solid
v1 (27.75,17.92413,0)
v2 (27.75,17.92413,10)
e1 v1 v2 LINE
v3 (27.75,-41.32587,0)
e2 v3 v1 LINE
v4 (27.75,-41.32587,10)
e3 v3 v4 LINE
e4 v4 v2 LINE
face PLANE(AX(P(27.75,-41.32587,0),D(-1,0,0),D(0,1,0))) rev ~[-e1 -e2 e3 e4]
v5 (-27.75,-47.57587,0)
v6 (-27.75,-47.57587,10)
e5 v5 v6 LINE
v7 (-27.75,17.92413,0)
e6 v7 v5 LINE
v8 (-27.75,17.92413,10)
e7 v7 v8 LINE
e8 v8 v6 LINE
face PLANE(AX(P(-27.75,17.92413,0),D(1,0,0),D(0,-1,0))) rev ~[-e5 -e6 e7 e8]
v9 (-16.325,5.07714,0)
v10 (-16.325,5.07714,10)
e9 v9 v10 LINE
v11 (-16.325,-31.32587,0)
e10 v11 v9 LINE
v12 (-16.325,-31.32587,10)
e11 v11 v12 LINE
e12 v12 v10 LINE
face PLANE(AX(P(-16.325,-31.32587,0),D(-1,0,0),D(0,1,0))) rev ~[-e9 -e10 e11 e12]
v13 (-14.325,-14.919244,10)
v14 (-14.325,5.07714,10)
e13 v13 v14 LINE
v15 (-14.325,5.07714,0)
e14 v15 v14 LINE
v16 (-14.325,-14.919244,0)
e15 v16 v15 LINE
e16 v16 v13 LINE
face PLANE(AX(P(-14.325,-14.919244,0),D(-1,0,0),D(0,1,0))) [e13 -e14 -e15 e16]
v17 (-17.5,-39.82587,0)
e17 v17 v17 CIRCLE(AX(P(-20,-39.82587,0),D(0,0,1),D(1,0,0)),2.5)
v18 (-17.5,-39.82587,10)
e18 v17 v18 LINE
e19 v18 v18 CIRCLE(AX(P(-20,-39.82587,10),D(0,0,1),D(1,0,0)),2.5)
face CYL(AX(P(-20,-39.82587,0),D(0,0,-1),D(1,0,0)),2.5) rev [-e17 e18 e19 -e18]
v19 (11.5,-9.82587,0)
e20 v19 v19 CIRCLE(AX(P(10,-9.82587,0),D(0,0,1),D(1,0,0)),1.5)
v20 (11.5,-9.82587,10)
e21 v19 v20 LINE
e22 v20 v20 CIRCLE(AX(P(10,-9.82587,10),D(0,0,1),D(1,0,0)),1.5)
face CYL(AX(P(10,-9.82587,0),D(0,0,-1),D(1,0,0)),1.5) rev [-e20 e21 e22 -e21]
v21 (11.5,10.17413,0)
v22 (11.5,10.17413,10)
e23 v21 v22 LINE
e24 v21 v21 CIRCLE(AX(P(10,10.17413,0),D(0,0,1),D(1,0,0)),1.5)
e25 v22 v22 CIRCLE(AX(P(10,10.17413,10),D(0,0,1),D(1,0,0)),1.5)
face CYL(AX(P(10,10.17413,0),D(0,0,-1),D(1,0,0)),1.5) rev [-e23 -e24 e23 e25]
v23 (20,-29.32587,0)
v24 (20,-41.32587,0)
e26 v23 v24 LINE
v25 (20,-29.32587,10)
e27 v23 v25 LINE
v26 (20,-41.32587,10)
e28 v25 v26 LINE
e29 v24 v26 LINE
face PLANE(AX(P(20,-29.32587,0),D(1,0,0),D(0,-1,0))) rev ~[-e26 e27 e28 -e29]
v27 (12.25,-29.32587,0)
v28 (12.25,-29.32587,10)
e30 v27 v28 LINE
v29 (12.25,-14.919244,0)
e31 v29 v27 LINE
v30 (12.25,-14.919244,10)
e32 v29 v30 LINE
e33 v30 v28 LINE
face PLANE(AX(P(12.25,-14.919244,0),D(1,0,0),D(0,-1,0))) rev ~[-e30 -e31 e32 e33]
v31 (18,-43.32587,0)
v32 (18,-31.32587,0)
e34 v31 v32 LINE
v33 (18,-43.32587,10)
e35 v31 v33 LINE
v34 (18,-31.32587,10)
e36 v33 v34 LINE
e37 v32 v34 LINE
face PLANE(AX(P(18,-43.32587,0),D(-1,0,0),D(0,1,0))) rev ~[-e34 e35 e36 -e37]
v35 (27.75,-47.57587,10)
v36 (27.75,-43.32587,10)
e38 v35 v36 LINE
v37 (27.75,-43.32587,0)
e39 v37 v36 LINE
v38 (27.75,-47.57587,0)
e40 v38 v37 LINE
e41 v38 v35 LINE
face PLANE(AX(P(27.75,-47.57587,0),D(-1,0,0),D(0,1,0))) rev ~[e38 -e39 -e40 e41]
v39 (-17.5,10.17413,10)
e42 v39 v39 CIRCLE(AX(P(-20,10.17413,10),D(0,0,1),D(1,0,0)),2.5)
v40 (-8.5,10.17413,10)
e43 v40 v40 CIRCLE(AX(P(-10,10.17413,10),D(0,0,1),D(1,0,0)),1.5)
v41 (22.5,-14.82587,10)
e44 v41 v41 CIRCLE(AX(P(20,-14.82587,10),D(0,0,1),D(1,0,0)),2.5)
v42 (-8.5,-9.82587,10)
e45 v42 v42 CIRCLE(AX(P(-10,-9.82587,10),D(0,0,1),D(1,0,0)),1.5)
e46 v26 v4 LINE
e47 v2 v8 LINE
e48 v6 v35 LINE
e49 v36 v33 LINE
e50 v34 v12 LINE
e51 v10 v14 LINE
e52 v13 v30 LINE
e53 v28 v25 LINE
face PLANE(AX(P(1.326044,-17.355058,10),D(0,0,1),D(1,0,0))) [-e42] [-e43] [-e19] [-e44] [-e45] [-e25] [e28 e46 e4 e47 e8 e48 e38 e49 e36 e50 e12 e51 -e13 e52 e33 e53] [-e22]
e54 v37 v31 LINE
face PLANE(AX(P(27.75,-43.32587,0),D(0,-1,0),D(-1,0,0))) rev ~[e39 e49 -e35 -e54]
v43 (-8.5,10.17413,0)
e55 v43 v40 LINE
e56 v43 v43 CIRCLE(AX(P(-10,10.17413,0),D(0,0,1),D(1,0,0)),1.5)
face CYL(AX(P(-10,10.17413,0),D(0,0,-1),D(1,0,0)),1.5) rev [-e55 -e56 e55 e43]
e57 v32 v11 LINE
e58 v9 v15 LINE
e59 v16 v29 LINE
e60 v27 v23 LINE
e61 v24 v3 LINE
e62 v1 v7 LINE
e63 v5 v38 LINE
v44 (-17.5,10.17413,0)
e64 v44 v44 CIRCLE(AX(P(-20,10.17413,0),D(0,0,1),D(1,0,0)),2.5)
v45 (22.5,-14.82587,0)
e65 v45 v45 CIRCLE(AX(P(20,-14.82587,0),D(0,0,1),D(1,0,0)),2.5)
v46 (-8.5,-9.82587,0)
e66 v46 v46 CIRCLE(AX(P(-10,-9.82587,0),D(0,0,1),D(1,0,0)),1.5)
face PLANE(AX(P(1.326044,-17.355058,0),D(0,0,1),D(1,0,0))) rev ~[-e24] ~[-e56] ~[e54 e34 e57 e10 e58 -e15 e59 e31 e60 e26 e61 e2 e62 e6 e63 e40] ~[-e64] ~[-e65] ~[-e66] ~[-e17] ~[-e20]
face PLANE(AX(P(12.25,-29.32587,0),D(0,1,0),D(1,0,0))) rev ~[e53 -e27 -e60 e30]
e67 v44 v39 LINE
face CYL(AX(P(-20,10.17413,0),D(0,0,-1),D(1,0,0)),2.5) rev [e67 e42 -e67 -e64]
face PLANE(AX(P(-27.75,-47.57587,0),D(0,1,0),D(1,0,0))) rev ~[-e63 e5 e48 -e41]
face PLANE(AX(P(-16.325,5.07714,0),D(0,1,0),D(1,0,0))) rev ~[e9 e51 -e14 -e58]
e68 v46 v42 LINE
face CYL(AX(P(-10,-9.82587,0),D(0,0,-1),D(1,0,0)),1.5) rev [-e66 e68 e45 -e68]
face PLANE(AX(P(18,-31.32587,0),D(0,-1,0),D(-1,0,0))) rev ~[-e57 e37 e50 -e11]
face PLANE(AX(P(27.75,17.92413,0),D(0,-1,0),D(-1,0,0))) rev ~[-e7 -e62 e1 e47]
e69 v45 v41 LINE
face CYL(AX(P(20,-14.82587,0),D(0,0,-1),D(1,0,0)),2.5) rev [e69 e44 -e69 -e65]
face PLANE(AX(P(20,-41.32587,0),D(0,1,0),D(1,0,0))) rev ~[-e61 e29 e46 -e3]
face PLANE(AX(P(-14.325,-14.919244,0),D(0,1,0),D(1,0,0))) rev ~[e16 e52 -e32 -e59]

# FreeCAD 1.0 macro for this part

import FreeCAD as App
import Part
import Sketcher
from FreeCAD import Vector
Q = App.Units.Quantity


def add_polygon(sketch, points):
    """Adds a closed chain of lines whose ends are joined by coincident constraints."""
    first, n = sketch.GeometryCount, len(points)
    for a, b in zip(points, points[1:] + points[:1]):
        sketch.addGeometry(Part.LineSegment(App.Vector(*a, 0), App.Vector(*b, 0)), False)
    for i in range(n):
        sketch.addConstraint(Sketcher.Constraint("Coincident", first + i, 2, first + (i + 1) % n, 1))

doc = App.newDocument("Part")
body = doc.addObject("PartDesign::Body", "Body")

# Sketch on XY plane
sketch1 = body.newObject("Sketcher::SketchObject", "Sketch")
sketch1.AttachmentSupport = (doc.getObject("XY_Plane"), [""])
sketch1.MapMode = "FlatFace"
add_polygon(sketch1, [(27.8, -41.3), (27.8, 17.9), (-27.8, 17.9), (-27.8, -47.6), (27.8, -47.6), (27.8, -43.3), (18, -43.3), (18, -31.3), (-16.3, -31.3), (-16.3, 5.1), (-14.3, 5.1), (-14.3, -14.9), (12.2, -14.9), (12.2, -29.3), (20, -29.3), (20, -41.3)])  # lines 0-15
sketch1.addGeometry(Part.Circle(Vector(-20, -39.8, 0), Vector(0, 0, 1), 2.5), False)  # 16
sketch1.addGeometry(Part.Circle(Vector(-10, -9.8, 0), Vector(0, 0, 1), 1.5), False)  # 17
sketch1.addGeometry(Part.Circle(Vector(-20, 10.2, 0), Vector(0, 0, 1), 2.5), False)  # 18
sketch1.addGeometry(Part.Circle(Vector(-10, 10.2, 0), Vector(0, 0, 1), 1.5), False)  # 19
sketch1.addGeometry(Part.Circle(Vector(10, -9.8, 0), Vector(0, 0, 1), 1.5), False)  # 20
sketch1.addGeometry(Part.Circle(Vector(20, -14.8, 0), Vector(0, 0, 1), 2.5), False)  # 21
sketch1.addGeometry(Part.Circle(Vector(10, 10.2, 0), Vector(0, 0, 1), 1.5), False)  # 22
sketch1.addConstraint([
    Sketcher.Constraint("Vertical", 0),
    Sketcher.Constraint("Horizontal", 1),
    Sketcher.Constraint("Vertical", 2),
    Sketcher.Constraint("Horizontal", 3),
    Sketcher.Constraint("Vertical", 4),
    Sketcher.Constraint("Horizontal", 5),
    Sketcher.Constraint("Vertical", 6),
    Sketcher.Constraint("Horizontal", 7),
    Sketcher.Constraint("Vertical", 8),
    Sketcher.Constraint("Horizontal", 9),
    Sketcher.Constraint("Vertical", 10),
    Sketcher.Constraint("Horizontal", 11),
    Sketcher.Constraint("Vertical", 12),
    Sketcher.Constraint("Horizontal", 13),
    Sketcher.Constraint("Vertical", 14),
    Sketcher.Constraint("Horizontal", 15),
    Sketcher.Constraint("Equal", 16, 18),
    Sketcher.Constraint("Equal", 17, 19),
    Sketcher.Constraint("Equal", 19, 20),
    Sketcher.Constraint("Equal", 18, 21),
    Sketcher.Constraint("Equal", 20, 22),
    Sketcher.Constraint("Symmetric", 17, 3, 20, 3, -2),
    Sketcher.Constraint("Symmetric", 19, 3, 22, 3, -2),
    Sketcher.Constraint("Horizontal", 18, 3, 19, 3),
    Sketcher.Constraint("Vertical", 16, 3, 18, 3),
    Sketcher.Constraint("Vertical", 17, 3, 19, 3),
    Sketcher.Constraint("Vertical", 0, 2, 3, 2),
    Sketcher.Constraint("Vertical", 21, 3, 13, 2),
    Sketcher.Constraint("Equal", 13, 15),
    Sketcher.Constraint("Equal", 6, 14),
    Sketcher.Constraint("Diameter", 16, Q("5 mm")),
    Sketcher.Constraint("Diameter", 17, Q("3 mm")),
    Sketcher.Constraint("DistanceX", 9, 1, 9, 2, Q("2 mm")),
    Sketcher.Constraint("DistanceY", 6, 1, 6, 2, Q("12 mm")),
    Sketcher.Constraint("DistanceX", 1, 2, 1, 1, Q("55.5 mm")),
    Sketcher.Constraint("DistanceY", 2, 2, 2, 1, Q("65.5 mm")),
    Sketcher.Constraint("DistanceX", 16, 3, -1, 1, Q("20 mm")),
    Sketcher.Constraint("DistanceX", 17, 3, -1, 1, Q("10 mm")),
    Sketcher.Constraint("DistanceX", -1, 1, 21, 3, Q("20 mm")),
    Sketcher.Constraint("DistanceX", -1, 1, 5, 2, Q("18 mm")),
    Sketcher.Constraint("DistanceY", 16, 3, 17, 3, Q("30 mm")),
    Sketcher.Constraint("DistanceY", 17, 3, 18, 3, Q("20 mm")),
    Sketcher.Constraint("DistanceY", 21, 3, 20, 3, Q("5 mm")),
    Sketcher.Constraint("DistanceY", 6, 2, 12, 2, Q("2 mm")),
    Sketcher.Constraint("DistanceX", 5, 2, 5, 1, Q("9.75 mm")),
    Sketcher.Constraint("DistanceY", 0, 1, 0, 2, Q("59.25 mm")),
    Sketcher.Constraint("DistanceY", 4, 2, 21, 3, Q("28.5 mm")),
    Sketcher.Constraint("DistanceX", 7, 2, 7, 1, Q("34.325 mm")),
    Sketcher.Constraint("DistanceY", 8, 1, 8, 2, Q("36.40301 mm")),
    Sketcher.Constraint("DistanceY", 10, 2, 10, 1, Q("19.996384 mm")),
    Sketcher.Constraint("DistanceY", 16, 3, -1, 1, Q("39.82587 mm")),
])
pad1 = body.newObject("PartDesign::Pad", "Pad")
pad1.Profile = sketch1
pad1.Length = 10

doc.recompute()
